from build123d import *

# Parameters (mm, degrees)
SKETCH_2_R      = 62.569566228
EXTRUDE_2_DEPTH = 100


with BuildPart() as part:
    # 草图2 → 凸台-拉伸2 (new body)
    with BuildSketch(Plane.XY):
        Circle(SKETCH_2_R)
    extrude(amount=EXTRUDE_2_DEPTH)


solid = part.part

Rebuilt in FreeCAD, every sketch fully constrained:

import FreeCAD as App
import Part
import Sketcher
from FreeCAD import Vector

doc = App.newDocument("Part")
params = doc.addObject("Spreadsheet::Sheet", "Params")
for row, (alias, value) in enumerate([
    ("pad1_length", "100 mm"),
], start=1):
    params.set(f"A{row}", alias)
    params.set(f"B{row}", "=" + value)
    params.setAlias(f"B{row}", alias)

body = doc.addObject("PartDesign::Body", "Body")

# Sketch on XY plane
sketch1 = body.newObject("Sketcher::SketchObject", "Sketch")
sketch1.AttachmentSupport = (doc.getObject("XY_Plane"), [""])
sketch1.MapMode = "FlatFace"
sketch1.addGeometry(Part.Circle(Vector(0, 0, 0), Vector(0, 0, 1), 63), False)
sketch1.addConstraint([
    Sketcher.Constraint("Coincident", 0, 3, -1, 1),
    Sketcher.Constraint("Diameter", 0, 125.139132),
])
pad1 = body.newObject("PartDesign::Pad", "Pad")
pad1.Profile = sketch1
pad1.setExpression("Length", "Params.pad1_length")

doc.recompute()
